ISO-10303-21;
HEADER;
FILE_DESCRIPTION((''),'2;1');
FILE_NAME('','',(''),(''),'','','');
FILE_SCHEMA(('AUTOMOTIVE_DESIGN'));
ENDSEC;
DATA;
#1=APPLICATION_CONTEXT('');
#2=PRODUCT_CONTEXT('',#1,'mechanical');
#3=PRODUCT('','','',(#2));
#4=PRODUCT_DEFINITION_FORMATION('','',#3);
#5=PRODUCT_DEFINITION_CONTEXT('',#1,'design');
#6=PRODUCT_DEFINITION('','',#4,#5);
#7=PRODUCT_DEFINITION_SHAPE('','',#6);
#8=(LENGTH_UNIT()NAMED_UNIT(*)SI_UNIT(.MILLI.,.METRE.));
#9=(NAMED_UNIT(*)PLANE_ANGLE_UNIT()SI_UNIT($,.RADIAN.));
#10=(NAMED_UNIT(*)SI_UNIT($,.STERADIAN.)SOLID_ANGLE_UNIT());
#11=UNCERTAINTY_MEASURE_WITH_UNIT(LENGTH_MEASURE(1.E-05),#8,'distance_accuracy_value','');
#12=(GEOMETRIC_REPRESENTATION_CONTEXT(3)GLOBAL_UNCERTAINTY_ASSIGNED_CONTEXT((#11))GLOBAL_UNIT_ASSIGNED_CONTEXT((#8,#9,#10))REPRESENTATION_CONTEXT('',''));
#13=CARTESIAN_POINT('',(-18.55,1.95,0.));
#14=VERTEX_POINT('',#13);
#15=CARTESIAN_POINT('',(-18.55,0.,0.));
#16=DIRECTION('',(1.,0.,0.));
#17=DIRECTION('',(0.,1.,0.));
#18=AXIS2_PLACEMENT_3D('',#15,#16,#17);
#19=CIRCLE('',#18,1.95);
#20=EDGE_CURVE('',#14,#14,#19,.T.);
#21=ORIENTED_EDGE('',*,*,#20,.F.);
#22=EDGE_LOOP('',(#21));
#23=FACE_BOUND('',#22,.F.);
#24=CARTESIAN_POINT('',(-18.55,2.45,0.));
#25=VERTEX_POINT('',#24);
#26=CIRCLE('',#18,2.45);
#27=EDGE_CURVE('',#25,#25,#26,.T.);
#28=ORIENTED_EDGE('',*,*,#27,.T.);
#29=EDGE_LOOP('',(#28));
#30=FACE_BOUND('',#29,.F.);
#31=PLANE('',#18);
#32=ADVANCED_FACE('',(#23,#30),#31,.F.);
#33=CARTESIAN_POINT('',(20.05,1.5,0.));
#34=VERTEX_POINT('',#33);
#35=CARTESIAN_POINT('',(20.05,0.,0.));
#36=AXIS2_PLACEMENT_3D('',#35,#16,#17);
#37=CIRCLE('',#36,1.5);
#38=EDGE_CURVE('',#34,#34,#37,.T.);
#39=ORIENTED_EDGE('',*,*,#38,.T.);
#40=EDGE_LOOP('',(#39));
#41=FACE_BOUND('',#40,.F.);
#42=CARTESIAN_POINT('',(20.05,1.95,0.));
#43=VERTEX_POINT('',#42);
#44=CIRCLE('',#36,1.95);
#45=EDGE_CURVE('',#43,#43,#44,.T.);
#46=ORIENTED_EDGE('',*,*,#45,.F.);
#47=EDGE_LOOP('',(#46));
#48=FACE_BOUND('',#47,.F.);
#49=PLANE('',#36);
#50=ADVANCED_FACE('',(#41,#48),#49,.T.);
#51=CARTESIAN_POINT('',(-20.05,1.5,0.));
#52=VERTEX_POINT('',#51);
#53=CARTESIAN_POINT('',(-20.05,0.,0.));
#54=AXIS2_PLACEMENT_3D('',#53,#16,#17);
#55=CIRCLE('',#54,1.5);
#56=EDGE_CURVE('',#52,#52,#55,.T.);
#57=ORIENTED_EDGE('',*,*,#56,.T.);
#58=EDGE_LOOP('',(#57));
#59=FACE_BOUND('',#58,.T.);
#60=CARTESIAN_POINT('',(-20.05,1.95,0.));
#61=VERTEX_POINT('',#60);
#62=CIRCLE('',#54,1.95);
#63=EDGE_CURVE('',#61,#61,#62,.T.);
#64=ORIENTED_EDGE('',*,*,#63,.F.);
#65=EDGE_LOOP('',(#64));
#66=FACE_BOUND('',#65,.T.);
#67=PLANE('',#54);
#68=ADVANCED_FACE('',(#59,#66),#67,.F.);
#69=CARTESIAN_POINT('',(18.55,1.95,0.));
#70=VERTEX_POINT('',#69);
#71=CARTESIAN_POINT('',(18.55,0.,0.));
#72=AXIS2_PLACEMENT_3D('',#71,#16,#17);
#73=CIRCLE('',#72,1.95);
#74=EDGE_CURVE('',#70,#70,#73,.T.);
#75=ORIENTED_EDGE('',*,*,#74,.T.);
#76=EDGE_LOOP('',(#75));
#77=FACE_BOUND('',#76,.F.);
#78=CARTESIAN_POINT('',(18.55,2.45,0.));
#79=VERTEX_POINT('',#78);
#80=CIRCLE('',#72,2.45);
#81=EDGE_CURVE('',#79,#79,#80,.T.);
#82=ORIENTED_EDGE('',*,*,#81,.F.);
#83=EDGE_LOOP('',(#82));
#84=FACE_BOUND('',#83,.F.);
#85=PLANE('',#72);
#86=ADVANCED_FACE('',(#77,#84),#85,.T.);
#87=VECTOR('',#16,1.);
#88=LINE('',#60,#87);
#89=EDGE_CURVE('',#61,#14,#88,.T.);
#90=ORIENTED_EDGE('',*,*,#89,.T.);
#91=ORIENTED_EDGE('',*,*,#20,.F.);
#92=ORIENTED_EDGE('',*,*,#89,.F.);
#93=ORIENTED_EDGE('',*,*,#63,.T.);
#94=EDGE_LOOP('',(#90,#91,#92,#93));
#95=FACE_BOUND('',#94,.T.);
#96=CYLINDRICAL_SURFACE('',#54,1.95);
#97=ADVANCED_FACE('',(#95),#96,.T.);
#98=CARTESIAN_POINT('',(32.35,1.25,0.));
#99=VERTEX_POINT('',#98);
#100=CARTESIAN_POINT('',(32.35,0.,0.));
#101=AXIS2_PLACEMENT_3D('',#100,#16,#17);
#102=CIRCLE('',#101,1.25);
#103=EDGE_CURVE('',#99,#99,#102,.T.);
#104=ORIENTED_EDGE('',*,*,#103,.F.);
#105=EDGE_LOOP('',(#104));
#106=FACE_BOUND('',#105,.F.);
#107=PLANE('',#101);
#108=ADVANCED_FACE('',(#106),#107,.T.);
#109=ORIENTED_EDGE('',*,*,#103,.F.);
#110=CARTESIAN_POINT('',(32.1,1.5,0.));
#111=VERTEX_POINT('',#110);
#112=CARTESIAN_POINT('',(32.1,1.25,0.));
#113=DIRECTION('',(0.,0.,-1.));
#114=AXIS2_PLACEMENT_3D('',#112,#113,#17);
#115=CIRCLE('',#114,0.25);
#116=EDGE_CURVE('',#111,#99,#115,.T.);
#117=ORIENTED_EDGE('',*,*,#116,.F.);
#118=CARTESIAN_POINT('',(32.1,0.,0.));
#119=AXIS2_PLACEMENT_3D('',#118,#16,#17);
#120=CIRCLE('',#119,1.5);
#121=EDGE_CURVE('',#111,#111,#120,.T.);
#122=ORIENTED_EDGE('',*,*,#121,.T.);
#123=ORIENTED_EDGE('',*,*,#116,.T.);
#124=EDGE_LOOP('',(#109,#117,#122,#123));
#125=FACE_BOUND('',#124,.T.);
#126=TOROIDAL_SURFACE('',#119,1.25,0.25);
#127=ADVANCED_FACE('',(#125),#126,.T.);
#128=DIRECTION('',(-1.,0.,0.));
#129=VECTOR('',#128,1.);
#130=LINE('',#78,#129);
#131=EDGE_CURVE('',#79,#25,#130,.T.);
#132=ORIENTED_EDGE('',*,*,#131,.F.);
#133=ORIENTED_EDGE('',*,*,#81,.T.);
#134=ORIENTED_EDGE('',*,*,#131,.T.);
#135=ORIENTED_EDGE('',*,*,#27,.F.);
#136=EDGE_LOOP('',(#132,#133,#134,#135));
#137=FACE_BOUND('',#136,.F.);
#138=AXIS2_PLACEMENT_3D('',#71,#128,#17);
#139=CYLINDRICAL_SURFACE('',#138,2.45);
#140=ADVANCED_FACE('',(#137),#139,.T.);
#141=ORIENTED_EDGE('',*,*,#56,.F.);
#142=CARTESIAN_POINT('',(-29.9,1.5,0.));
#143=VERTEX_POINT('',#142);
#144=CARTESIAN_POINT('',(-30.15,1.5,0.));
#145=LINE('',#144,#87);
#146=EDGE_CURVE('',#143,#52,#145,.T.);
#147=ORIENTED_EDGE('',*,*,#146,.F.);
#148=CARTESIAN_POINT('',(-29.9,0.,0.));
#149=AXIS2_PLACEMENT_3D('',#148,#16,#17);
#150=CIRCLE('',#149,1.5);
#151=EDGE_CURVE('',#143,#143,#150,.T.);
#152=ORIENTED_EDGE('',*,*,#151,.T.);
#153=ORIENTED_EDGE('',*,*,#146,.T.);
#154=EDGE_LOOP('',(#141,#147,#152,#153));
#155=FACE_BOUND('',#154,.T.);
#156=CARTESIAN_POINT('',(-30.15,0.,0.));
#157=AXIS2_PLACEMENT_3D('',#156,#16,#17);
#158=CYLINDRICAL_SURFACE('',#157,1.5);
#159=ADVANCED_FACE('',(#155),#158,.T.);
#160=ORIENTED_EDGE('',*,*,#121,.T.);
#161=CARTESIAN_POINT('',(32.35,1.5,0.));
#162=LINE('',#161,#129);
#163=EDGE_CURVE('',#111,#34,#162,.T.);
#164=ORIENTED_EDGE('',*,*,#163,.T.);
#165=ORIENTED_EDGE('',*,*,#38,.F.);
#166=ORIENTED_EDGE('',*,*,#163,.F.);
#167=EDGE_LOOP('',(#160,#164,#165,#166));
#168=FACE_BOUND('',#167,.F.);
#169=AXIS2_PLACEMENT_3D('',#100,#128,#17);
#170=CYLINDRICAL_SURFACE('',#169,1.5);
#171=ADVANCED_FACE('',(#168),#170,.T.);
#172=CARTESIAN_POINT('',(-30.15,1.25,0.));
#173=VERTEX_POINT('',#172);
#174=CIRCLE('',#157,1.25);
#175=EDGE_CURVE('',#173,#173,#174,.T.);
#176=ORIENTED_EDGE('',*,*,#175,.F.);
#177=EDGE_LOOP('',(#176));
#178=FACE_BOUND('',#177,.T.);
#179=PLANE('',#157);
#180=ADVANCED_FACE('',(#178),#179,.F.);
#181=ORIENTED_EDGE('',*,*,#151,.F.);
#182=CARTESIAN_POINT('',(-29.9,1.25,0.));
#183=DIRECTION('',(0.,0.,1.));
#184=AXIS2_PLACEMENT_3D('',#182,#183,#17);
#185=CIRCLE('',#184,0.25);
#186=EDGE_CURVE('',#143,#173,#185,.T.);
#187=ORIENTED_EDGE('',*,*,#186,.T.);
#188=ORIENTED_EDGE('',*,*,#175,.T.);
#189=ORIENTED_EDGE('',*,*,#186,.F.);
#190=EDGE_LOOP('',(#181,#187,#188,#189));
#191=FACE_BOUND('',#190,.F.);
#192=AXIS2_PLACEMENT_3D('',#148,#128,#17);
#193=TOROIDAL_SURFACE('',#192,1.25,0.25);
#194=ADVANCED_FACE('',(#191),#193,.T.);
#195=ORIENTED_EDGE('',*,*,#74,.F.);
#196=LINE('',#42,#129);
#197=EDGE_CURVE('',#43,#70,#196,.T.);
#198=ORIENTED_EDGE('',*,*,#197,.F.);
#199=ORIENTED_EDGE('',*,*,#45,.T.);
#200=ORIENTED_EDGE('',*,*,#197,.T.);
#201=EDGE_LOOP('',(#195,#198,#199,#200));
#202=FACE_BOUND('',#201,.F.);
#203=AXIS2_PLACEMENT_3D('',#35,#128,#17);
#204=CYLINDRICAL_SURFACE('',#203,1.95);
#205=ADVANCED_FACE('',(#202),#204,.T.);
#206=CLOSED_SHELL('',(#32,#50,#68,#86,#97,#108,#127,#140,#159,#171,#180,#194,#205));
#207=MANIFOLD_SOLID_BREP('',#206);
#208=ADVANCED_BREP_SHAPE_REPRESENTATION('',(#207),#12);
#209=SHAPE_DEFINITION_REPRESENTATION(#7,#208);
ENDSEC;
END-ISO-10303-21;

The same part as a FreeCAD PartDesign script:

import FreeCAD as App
import Part
import Sketcher


def edges_at(feature, points):
    """Names of the edges that pass closest to the given points."""
    edges = feature.Shape.Edges
    near = lambda p: min(range(len(edges)), key=lambda i: edges[i].distToShape(Part.Vertex(*p))[0])
    return sorted({f"Edge{near(p) + 1}" for p in points})

doc = App.newDocument("Part")
body = doc.addObject("PartDesign::Body", "Body")

# Sketch on XY plane
sketch1 = body.newObject("Sketcher::SketchObject", "Sketch")
sketch1.AttachmentSupport = (doc.getObject("XY_Plane"), [""])
sketch1.MapMode = "FlatFace"
sketch1.addGeometry(Part.LineSegment(App.Vector(-18.55, 2.45, 0), App.Vector(-18.55, 1.95, 0)), False)
sketch1.addGeometry(Part.LineSegment(App.Vector(-18.55, 1.95, 0), App.Vector(-20.05, 1.95, 0)), False)
sketch1.addGeometry(Part.LineSegment(App.Vector(-20.05, 1.95, 0), App.Vector(-20.05, 1.5, 0)), False)
sketch1.addGeometry(Part.LineSegment(App.Vector(-20.05, 1.5, 0), App.Vector(-30.15, 1.5, 0)), False)
sketch1.addGeometry(Part.LineSegment(App.Vector(-30.15, 1.5, 0), App.Vector(-30.15, 0, 0)), False)
sketch1.addGeometry(Part.LineSegment(App.Vector(-30.15, 0, 0), App.Vector(32.35, 0, 0)), False)
sketch1.addGeometry(Part.LineSegment(App.Vector(32.35, 0, 0), App.Vector(32.35, 1.5, 0)), False)
sketch1.addGeometry(Part.LineSegment(App.Vector(32.35, 1.5, 0), App.Vector(20.05, 1.5, 0)), False)
sketch1.addGeometry(Part.LineSegment(App.Vector(20.05, 1.5, 0), App.Vector(20.05, 1.95, 0)), False)
sketch1.addGeometry(Part.LineSegment(App.Vector(20.05, 1.95, 0), App.Vector(18.55, 1.95, 0)), False)
sketch1.addGeometry(Part.LineSegment(App.Vector(18.55, 1.95, 0), App.Vector(18.55, 2.45, 0)), False)
sketch1.addGeometry(Part.LineSegment(App.Vector(18.55, 2.45, 0), App.Vector(-18.55, 2.45, 0)), False)
sketch1.addConstraint(Sketcher.Constraint("Coincident", 0, 2, 1, 1))
sketch1.addConstraint(Sketcher.Constraint("Coincident", 1, 2, 2, 1))
sketch1.addConstraint(Sketcher.Constraint("Coincident", 2, 2, 3, 1))
sketch1.addConstraint(Sketcher.Constraint("Coincident", 3, 2, 4, 1))
sketch1.addConstraint(Sketcher.Constraint("Coincident", 4, 2, 5, 1))
sketch1.addConstraint(Sketcher.Constraint("Coincident", 5, 2, 6, 1))
sketch1.addConstraint(Sketcher.Constraint("Coincident", 6, 2, 7, 1))
sketch1.addConstraint(Sketcher.Constraint("Coincident", 7, 2, 8, 1))
sketch1.addConstraint(Sketcher.Constraint("Coincident", 8, 2, 9, 1))
sketch1.addConstraint(Sketcher.Constraint("Coincident", 9, 2, 10, 1))
sketch1.addConstraint(Sketcher.Constraint("Coincident", 10, 2, 11, 1))
sketch1.addConstraint(Sketcher.Constraint("Coincident", 11, 2, 0, 1))
sketch1.addConstraint(Sketcher.Constraint("Vertical", 0))
sketch1.addConstraint(Sketcher.Constraint("Horizontal", 1))
sketch1.addConstraint(Sketcher.Constraint("Vertical", 2))
sketch1.addConstraint(Sketcher.Constraint("Horizontal", 3))
sketch1.addConstraint(Sketcher.Constraint("Vertical", 4))
sketch1.addConstraint(Sketcher.Constraint("Horizontal", 5))
sketch1.addConstraint(Sketcher.Constraint("Vertical", 6))
sketch1.addConstraint(Sketcher.Constraint("Horizontal", 7))
sketch1.addConstraint(Sketcher.Constraint("Vertical", 8))
sketch1.addConstraint(Sketcher.Constraint("Horizontal", 9))
sketch1.addConstraint(Sketcher.Constraint("Vertical", 10))
sketch1.addConstraint(Sketcher.Constraint("Horizontal", 11))
sketch1.addConstraint(Sketcher.Constraint("Symmetric", 2, 2, 7, 2, -2))
sketch1.addConstraint(Sketcher.Constraint("Symmetric", 0, 2, 9, 2, -2))
sketch1.addConstraint(Sketcher.Constraint("PointOnObject", 4, 2, -1))
sketch1.addConstraint(Sketcher.Constraint("Equal", 9, 4))
sketch1.addConstraint(Sketcher.Constraint("DistanceX", 3, 2, 3, 1, 10.1))
sketch1.addConstraint(Sketcher.Constraint("DistanceX", 5, 1, 5, 2, 62.5))
sketch1.addConstraint(Sketcher.Constraint("DistanceX", 3, 2, 0, 2, 11.6))
sketch1.addConstraint(Sketcher.Constraint("DistanceX", 7, 2, 7, 1, 12.3))
sketch1.addConstraint(Sketcher.Constraint("DistanceY", 0, 2, 0, 1, 0.5))
sketch1.addConstraint(Sketcher.Constraint("DistanceY", 2, 2, 2, 1, 0.45))
revolution = body.newObject("PartDesign::Revolution", "Revolution")
revolution.Profile = sketch1
revolution.ReferenceAxis = (sketch1, ["H_Axis"])
revolution.Angle = 360
doc.recompute()

fillet = body.newObject("PartDesign::Fillet", "Fillet")
fillet.Base = (revolution, edges_at(revolution, [(-30.15, -1.5, 0), (32.35, -1.5, 0)]))
fillet.Radius = 0.25

doc.recompute()
